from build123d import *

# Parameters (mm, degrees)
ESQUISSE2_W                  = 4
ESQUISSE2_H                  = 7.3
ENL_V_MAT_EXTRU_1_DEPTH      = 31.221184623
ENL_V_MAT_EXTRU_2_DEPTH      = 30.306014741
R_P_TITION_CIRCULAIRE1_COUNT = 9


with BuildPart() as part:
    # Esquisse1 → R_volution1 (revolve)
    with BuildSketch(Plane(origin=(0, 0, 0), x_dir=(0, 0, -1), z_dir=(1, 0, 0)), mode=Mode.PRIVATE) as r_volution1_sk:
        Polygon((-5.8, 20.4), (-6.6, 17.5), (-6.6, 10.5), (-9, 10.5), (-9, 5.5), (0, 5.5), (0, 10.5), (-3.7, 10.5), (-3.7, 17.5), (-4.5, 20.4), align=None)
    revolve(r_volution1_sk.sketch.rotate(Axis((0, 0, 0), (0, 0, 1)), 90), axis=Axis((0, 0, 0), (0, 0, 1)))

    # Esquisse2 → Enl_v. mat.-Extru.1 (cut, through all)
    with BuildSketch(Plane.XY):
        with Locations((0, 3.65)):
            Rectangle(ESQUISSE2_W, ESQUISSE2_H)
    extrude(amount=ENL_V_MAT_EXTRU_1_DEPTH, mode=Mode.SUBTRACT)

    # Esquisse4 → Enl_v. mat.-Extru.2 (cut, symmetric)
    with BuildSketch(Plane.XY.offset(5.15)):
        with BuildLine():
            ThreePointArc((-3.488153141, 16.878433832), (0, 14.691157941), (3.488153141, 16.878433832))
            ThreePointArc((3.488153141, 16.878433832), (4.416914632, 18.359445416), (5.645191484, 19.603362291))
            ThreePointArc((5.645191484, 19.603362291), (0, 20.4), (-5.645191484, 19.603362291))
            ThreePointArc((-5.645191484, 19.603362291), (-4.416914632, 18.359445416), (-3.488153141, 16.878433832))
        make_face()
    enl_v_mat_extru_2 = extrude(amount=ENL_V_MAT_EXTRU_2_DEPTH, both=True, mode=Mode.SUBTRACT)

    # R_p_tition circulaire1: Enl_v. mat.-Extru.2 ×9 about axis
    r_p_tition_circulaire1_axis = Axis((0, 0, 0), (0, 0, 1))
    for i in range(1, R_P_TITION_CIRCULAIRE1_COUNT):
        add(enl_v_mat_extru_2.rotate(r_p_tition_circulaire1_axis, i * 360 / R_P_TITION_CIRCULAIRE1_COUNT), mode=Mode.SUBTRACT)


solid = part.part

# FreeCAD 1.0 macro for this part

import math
import FreeCAD as App
import Part
import Sketcher
Q = App.Units.Quantity


def add_polygon(sketch, points):
    """Adds a closed chain of lines whose ends are joined by coincident constraints."""
    first, n = sketch.GeometryCount, len(points)
    for a, b in zip(points, points[1:] + points[:1]):
        sketch.addGeometry(Part.LineSegment(App.Vector(*a, 0), App.Vector(*b, 0)), False)
    for i in range(n):
        sketch.addConstraint(Sketcher.Constraint("Coincident", first + i, 2, first + (i + 1) % n, 1))

doc = App.newDocument("Part")
body = doc.addObject("PartDesign::Body", "Body")

sketch1 = body.newObject("Sketcher::SketchObject", "Sketch")
sketch1.AttachmentSupport = (doc.getObject("YZ_Plane"), [""])
sketch1.MapMode = "FlatFace"
add_polygon(sketch1, [(20.4, 5.8), (17.5, 6.6), (10.5, 6.6), (10.5, 9), (5.5, 9), (5.5, 0), (10.5, 0), (10.5, 3.7), (17.5, 3.7), (20.4, 4.5)])
sketch1.addConstraint(Sketcher.Constraint("Horizontal", 1))
sketch1.addConstraint(Sketcher.Constraint("Vertical", 2))
sketch1.addConstraint(Sketcher.Constraint("Horizontal", 3))
sketch1.addConstraint(Sketcher.Constraint("Vertical", 4))
sketch1.addConstraint(Sketcher.Constraint("Horizontal", 5))
sketch1.addConstraint(Sketcher.Constraint("Vertical", 6))
sketch1.addConstraint(Sketcher.Constraint("Horizontal", 7))
sketch1.addConstraint(Sketcher.Constraint("Vertical", 9))
sketch1.addConstraint(Sketcher.Constraint("PointOnObject", 4, 2, -1))
sketch1.addConstraint(Sketcher.Constraint("Vertical", 2, 2, 5, 2))
sketch1.addConstraint(Sketcher.Constraint("Vertical", 0, 2, 7, 2))
sketch1.addConstraint(Sketcher.Constraint("Equal", 0, 8))
sketch1.addConstraint(Sketcher.Constraint("DistanceX", 1, 2, 1, 1, Q("7 mm")))
sketch1.addConstraint(Sketcher.Constraint("DistanceX", 3, 2, 3, 1, Q("5 mm")))
sketch1.addConstraint(Sketcher.Constraint("DistanceY", 4, 2, 4, 1, Q("9 mm")))
sketch1.addConstraint(Sketcher.Constraint("DistanceY", 2, 1, 2, 2, Q("2.4 mm")))
sketch1.addConstraint(Sketcher.Constraint("DistanceY", 6, 1, 6, 2, Q("3.7 mm")))
sketch1.addConstraint(Sketcher.Constraint("DistanceY", 9, 1, 9, 2, Q("1.3 mm")))
sketch1.addConstraint(Sketcher.Constraint("DistanceX", -1, 1, 0, 2, Q("17.5 mm")))
sketch1.addConstraint(Sketcher.Constraint("DistanceX", -1, 1, 8, 2, Q("20.4 mm")))
revolution = body.newObject("PartDesign::Revolution", "Revolution")
revolution.Profile = sketch1
revolution.ReferenceAxis = (sketch1, ["V_Axis"])
revolution.Angle = 360

sketch2 = body.newObject("Sketcher::SketchObject", "Sketch001")
sketch2.AttachmentSupport = (doc.getObject("XY_Plane"), [""])
sketch2.MapMode = "FlatFace"
add_polygon(sketch2, [(-2, 7.3), (-2, 0), (2, 0), (2, 7.3)])
sketch2.addConstraint(Sketcher.Constraint("Vertical", 0))
sketch2.addConstraint(Sketcher.Constraint("Horizontal", 1))
sketch2.addConstraint(Sketcher.Constraint("Vertical", 2))
sketch2.addConstraint(Sketcher.Constraint("Horizontal", 3))
sketch2.addConstraint(Sketcher.Constraint("Symmetric", 0, 2, 1, 2, -1, 1))
sketch2.addConstraint(Sketcher.Constraint("DistanceX", 1, 1, 1, 2, Q("4 mm")))
sketch2.addConstraint(Sketcher.Constraint("DistanceY", 0, 2, 0, 1, Q("7.3 mm")))
pocket1 = body.newObject("PartDesign::Pocket", "Pocket")
pocket1.Profile = sketch2
pocket1.Type = "ThroughAll"
pocket1.Reversed = True

sketch3 = body.newObject("Sketcher::SketchObject", "Sketch002")
sketch3.AttachmentSupport = (doc.getObject("XY_Plane"), [""])
sketch3.MapMode = "FlatFace"
sketch3.AttachmentOffset = App.Placement(App.Vector(0, 0, 5.15), App.Rotation())
sketch3.addGeometry(Part.ArcOfCircle(Part.Circle(App.Vector(0, 18.6, 0), App.Vector(0, 0, 1), 3.9), math.radians(-154), math.radians(-26)), False)
sketch3.addGeometry(Part.ArcOfCircle(Part.Circle(App.Vector(10.7, 13.4, 0), App.Vector(0, 0, 1), 8), math.radians(129), math.radians(154)), False)
sketch3.addGeometry(Part.ArcOfCircle(Part.Circle(App.Vector(0, 0, 0), App.Vector(0, 0, 1), 20.4), math.radians(74), math.radians(106)), False)
sketch3.addGeometry(Part.ArcOfCircle(Part.Circle(App.Vector(-10.7, 13.4, 0), App.Vector(0, 0, 1), 8), math.radians(26), math.radians(51)), False)
sketch3.addConstraint(Sketcher.Constraint("Tangent", 0, 2, 1, 2))
sketch3.addConstraint(Sketcher.Constraint("Coincident", 1, 1, 2, 1))
sketch3.addConstraint(Sketcher.Constraint("Coincident", 2, 2, 3, 2))
sketch3.addConstraint(Sketcher.Constraint("Tangent", 3, 1, 0, 1))
sketch3.addConstraint(Sketcher.Constraint("Coincident", 2, 3, -1, 1))
sketch3.addConstraint(Sketcher.Constraint("Equal", 1, 3))
sketch3.addConstraint(Sketcher.Constraint("Symmetric", 1, 3, 3, 3, -2))
sketch3.addConstraint(Sketcher.Constraint("Radius", 1, Q("8 mm")))
sketch3.addConstraint(Sketcher.Constraint("Radius", 2, Q("20.4 mm")))
sketch3.addConstraint(Sketcher.Constraint("Radius", 0, Q("3.875 mm")))
sketch3.addConstraint(Sketcher.Constraint("DistanceX", -1, 1, 1, 3, Q("10.689502 mm")))
sketch3.addConstraint(Sketcher.Constraint("DistanceY", -1, 1, 1, 3, Q("13.3941 mm")))
pocket2 = body.newObject("PartDesign::Pocket", "Pocket001")
pocket2.Profile = sketch3
pocket2.Length = 60.612029
pocket2.Midplane = True
doc.recompute()

polarpattern = body.newObject("PartDesign::PolarPattern", "PolarPattern")
polarpattern.Originals = [pocket2]
polarpattern.Axis = (doc.getObject("Z_Axis"), [""])
polarpattern.Angle = 360
polarpattern.Occurrences = 9
body.Tip = polarpattern

doc.recompute()
